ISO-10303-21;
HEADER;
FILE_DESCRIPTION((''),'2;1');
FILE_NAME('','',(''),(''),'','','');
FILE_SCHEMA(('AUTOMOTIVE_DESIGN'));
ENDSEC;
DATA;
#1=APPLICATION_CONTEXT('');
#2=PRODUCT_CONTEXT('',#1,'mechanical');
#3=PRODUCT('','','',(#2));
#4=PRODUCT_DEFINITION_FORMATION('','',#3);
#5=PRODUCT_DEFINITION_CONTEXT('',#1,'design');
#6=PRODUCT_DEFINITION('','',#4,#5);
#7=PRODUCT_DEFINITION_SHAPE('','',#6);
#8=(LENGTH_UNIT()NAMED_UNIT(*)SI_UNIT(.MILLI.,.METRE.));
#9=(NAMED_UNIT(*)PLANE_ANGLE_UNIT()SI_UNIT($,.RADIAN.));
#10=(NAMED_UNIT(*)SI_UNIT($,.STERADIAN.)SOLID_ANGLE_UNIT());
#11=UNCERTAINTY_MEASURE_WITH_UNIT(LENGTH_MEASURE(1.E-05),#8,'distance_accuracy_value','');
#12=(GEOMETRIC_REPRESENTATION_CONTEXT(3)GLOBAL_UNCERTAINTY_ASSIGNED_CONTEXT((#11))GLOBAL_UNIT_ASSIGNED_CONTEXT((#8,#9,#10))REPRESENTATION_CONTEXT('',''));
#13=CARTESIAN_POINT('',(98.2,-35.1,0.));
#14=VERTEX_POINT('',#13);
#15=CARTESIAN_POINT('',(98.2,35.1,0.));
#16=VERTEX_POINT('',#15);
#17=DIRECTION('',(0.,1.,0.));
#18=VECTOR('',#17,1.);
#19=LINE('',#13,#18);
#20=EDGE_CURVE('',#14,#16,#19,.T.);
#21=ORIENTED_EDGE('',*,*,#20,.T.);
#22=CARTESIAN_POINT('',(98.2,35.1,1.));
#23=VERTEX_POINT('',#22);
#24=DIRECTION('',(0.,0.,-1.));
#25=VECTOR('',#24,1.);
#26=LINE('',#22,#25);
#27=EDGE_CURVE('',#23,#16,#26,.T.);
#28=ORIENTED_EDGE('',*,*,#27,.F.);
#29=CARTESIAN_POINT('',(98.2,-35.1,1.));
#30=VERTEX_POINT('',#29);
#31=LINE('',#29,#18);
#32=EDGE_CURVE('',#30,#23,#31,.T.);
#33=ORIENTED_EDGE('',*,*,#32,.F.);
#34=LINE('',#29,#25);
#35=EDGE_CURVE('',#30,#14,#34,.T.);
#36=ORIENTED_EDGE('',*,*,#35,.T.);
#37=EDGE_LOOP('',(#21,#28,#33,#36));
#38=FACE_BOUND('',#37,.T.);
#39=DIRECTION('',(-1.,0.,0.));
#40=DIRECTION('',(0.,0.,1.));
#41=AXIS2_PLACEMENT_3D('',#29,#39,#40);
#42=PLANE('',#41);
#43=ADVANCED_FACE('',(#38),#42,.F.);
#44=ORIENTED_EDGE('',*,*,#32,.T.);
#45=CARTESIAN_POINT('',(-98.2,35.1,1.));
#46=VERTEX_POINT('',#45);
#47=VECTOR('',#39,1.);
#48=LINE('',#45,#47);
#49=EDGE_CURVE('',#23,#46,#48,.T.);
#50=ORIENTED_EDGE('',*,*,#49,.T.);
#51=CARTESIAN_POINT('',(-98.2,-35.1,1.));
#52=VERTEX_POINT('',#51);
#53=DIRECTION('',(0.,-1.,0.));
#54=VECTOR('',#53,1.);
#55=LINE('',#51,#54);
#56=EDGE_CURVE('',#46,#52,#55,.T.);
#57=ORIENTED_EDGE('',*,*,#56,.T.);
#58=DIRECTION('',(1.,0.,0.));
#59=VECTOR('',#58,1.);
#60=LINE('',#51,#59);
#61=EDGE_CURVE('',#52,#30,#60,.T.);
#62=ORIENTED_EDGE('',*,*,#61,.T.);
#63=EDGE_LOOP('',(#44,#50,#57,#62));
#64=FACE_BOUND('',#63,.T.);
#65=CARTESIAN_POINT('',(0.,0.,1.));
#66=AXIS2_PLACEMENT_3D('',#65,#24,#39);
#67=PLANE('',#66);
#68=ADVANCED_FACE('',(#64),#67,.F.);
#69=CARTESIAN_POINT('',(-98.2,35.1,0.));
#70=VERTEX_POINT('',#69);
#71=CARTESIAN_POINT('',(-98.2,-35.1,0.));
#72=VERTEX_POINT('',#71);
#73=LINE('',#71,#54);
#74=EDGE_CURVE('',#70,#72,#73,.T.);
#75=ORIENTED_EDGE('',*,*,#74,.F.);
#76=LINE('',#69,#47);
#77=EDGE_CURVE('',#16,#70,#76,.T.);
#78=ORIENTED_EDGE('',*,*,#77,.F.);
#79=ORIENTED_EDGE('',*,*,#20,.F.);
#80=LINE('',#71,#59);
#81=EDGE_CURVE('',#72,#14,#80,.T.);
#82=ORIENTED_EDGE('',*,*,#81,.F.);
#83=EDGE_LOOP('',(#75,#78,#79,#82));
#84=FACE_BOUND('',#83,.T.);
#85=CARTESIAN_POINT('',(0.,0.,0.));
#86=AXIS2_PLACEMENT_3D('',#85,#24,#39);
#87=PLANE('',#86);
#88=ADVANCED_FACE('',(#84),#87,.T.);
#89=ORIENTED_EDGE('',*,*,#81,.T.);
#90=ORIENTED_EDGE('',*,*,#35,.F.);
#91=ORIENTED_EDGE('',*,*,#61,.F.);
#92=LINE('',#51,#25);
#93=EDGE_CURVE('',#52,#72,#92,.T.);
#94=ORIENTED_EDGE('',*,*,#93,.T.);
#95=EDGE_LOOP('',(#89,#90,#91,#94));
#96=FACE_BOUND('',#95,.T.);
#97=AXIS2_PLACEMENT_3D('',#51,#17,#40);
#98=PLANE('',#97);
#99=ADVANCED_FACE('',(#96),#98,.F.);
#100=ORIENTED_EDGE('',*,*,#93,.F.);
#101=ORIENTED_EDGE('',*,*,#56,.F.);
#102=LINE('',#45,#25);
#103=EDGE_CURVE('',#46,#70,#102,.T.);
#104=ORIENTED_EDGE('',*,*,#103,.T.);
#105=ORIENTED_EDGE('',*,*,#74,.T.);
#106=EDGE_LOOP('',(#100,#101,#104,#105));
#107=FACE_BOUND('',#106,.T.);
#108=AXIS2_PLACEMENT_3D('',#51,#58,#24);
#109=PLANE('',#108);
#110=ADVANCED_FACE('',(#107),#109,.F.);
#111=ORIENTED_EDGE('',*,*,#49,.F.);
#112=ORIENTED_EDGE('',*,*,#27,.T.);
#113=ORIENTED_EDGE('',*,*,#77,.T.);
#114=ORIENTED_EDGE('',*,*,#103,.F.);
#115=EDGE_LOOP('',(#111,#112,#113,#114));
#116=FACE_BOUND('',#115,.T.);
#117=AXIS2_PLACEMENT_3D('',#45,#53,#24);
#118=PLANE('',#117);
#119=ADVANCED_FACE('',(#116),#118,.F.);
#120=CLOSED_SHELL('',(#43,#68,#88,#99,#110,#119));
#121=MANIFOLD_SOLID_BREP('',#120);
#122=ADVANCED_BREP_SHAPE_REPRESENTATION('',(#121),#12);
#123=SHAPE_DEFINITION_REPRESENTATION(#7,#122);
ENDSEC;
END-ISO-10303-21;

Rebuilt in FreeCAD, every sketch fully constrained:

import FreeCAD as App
import Part
import Sketcher

V = App.Vector
Q = App.Units.Quantity

doc = App.newDocument("Part")
body = doc.addObject("PartDesign::Body", "Body")

sketch1 = body.newObject("Sketcher::SketchObject", "Sketch")
sketch1.AttachmentSupport = (doc.getObject("XY_Plane"), [""])
sketch1.MapMode = "FlatFace"
sketch1.addGeometry(Part.LineSegment(V(-98.2, 35.1, 0), V(-98.2, -35.1, 0)), False)
sketch1.addGeometry(Part.LineSegment(V(-98.2, -35.1, 0), V(98.2, -35.1, 0)), False)
sketch1.addGeometry(Part.LineSegment(V(98.2, -35.1, 0), V(98.2, 35.1, 0)), False)
sketch1.addGeometry(Part.LineSegment(V(98.2, 35.1, 0), V(-98.2, 35.1, 0)), False)
sketch1.addConstraint(Sketcher.Constraint("Coincident", 0, 2, 1, 1))
sketch1.addConstraint(Sketcher.Constraint("Coincident", 1, 2, 2, 1))
sketch1.addConstraint(Sketcher.Constraint("Coincident", 2, 2, 3, 1))
sketch1.addConstraint(Sketcher.Constraint("Coincident", 3, 2, 0, 1))
sketch1.addConstraint(Sketcher.Constraint("Vertical", 0))
sketch1.addConstraint(Sketcher.Constraint("Horizontal", 1))
sketch1.addConstraint(Sketcher.Constraint("Vertical", 2))
sketch1.addConstraint(Sketcher.Constraint("Horizontal", 3))
sketch1.addConstraint(Sketcher.Constraint("Symmetric", 0, 2, 2, 2, -1, 1))
sketch1.addConstraint(Sketcher.Constraint("DistanceX", 1, 1, 1, 2, Q("196.4 mm")))
sketch1.addConstraint(Sketcher.Constraint("DistanceY", 0, 2, 0, 1, Q("70.2 mm")))
pad1 = body.newObject("PartDesign::Pad", "Pad")
pad1.Profile = sketch1
pad1.Length = 1

doc.recompute()
